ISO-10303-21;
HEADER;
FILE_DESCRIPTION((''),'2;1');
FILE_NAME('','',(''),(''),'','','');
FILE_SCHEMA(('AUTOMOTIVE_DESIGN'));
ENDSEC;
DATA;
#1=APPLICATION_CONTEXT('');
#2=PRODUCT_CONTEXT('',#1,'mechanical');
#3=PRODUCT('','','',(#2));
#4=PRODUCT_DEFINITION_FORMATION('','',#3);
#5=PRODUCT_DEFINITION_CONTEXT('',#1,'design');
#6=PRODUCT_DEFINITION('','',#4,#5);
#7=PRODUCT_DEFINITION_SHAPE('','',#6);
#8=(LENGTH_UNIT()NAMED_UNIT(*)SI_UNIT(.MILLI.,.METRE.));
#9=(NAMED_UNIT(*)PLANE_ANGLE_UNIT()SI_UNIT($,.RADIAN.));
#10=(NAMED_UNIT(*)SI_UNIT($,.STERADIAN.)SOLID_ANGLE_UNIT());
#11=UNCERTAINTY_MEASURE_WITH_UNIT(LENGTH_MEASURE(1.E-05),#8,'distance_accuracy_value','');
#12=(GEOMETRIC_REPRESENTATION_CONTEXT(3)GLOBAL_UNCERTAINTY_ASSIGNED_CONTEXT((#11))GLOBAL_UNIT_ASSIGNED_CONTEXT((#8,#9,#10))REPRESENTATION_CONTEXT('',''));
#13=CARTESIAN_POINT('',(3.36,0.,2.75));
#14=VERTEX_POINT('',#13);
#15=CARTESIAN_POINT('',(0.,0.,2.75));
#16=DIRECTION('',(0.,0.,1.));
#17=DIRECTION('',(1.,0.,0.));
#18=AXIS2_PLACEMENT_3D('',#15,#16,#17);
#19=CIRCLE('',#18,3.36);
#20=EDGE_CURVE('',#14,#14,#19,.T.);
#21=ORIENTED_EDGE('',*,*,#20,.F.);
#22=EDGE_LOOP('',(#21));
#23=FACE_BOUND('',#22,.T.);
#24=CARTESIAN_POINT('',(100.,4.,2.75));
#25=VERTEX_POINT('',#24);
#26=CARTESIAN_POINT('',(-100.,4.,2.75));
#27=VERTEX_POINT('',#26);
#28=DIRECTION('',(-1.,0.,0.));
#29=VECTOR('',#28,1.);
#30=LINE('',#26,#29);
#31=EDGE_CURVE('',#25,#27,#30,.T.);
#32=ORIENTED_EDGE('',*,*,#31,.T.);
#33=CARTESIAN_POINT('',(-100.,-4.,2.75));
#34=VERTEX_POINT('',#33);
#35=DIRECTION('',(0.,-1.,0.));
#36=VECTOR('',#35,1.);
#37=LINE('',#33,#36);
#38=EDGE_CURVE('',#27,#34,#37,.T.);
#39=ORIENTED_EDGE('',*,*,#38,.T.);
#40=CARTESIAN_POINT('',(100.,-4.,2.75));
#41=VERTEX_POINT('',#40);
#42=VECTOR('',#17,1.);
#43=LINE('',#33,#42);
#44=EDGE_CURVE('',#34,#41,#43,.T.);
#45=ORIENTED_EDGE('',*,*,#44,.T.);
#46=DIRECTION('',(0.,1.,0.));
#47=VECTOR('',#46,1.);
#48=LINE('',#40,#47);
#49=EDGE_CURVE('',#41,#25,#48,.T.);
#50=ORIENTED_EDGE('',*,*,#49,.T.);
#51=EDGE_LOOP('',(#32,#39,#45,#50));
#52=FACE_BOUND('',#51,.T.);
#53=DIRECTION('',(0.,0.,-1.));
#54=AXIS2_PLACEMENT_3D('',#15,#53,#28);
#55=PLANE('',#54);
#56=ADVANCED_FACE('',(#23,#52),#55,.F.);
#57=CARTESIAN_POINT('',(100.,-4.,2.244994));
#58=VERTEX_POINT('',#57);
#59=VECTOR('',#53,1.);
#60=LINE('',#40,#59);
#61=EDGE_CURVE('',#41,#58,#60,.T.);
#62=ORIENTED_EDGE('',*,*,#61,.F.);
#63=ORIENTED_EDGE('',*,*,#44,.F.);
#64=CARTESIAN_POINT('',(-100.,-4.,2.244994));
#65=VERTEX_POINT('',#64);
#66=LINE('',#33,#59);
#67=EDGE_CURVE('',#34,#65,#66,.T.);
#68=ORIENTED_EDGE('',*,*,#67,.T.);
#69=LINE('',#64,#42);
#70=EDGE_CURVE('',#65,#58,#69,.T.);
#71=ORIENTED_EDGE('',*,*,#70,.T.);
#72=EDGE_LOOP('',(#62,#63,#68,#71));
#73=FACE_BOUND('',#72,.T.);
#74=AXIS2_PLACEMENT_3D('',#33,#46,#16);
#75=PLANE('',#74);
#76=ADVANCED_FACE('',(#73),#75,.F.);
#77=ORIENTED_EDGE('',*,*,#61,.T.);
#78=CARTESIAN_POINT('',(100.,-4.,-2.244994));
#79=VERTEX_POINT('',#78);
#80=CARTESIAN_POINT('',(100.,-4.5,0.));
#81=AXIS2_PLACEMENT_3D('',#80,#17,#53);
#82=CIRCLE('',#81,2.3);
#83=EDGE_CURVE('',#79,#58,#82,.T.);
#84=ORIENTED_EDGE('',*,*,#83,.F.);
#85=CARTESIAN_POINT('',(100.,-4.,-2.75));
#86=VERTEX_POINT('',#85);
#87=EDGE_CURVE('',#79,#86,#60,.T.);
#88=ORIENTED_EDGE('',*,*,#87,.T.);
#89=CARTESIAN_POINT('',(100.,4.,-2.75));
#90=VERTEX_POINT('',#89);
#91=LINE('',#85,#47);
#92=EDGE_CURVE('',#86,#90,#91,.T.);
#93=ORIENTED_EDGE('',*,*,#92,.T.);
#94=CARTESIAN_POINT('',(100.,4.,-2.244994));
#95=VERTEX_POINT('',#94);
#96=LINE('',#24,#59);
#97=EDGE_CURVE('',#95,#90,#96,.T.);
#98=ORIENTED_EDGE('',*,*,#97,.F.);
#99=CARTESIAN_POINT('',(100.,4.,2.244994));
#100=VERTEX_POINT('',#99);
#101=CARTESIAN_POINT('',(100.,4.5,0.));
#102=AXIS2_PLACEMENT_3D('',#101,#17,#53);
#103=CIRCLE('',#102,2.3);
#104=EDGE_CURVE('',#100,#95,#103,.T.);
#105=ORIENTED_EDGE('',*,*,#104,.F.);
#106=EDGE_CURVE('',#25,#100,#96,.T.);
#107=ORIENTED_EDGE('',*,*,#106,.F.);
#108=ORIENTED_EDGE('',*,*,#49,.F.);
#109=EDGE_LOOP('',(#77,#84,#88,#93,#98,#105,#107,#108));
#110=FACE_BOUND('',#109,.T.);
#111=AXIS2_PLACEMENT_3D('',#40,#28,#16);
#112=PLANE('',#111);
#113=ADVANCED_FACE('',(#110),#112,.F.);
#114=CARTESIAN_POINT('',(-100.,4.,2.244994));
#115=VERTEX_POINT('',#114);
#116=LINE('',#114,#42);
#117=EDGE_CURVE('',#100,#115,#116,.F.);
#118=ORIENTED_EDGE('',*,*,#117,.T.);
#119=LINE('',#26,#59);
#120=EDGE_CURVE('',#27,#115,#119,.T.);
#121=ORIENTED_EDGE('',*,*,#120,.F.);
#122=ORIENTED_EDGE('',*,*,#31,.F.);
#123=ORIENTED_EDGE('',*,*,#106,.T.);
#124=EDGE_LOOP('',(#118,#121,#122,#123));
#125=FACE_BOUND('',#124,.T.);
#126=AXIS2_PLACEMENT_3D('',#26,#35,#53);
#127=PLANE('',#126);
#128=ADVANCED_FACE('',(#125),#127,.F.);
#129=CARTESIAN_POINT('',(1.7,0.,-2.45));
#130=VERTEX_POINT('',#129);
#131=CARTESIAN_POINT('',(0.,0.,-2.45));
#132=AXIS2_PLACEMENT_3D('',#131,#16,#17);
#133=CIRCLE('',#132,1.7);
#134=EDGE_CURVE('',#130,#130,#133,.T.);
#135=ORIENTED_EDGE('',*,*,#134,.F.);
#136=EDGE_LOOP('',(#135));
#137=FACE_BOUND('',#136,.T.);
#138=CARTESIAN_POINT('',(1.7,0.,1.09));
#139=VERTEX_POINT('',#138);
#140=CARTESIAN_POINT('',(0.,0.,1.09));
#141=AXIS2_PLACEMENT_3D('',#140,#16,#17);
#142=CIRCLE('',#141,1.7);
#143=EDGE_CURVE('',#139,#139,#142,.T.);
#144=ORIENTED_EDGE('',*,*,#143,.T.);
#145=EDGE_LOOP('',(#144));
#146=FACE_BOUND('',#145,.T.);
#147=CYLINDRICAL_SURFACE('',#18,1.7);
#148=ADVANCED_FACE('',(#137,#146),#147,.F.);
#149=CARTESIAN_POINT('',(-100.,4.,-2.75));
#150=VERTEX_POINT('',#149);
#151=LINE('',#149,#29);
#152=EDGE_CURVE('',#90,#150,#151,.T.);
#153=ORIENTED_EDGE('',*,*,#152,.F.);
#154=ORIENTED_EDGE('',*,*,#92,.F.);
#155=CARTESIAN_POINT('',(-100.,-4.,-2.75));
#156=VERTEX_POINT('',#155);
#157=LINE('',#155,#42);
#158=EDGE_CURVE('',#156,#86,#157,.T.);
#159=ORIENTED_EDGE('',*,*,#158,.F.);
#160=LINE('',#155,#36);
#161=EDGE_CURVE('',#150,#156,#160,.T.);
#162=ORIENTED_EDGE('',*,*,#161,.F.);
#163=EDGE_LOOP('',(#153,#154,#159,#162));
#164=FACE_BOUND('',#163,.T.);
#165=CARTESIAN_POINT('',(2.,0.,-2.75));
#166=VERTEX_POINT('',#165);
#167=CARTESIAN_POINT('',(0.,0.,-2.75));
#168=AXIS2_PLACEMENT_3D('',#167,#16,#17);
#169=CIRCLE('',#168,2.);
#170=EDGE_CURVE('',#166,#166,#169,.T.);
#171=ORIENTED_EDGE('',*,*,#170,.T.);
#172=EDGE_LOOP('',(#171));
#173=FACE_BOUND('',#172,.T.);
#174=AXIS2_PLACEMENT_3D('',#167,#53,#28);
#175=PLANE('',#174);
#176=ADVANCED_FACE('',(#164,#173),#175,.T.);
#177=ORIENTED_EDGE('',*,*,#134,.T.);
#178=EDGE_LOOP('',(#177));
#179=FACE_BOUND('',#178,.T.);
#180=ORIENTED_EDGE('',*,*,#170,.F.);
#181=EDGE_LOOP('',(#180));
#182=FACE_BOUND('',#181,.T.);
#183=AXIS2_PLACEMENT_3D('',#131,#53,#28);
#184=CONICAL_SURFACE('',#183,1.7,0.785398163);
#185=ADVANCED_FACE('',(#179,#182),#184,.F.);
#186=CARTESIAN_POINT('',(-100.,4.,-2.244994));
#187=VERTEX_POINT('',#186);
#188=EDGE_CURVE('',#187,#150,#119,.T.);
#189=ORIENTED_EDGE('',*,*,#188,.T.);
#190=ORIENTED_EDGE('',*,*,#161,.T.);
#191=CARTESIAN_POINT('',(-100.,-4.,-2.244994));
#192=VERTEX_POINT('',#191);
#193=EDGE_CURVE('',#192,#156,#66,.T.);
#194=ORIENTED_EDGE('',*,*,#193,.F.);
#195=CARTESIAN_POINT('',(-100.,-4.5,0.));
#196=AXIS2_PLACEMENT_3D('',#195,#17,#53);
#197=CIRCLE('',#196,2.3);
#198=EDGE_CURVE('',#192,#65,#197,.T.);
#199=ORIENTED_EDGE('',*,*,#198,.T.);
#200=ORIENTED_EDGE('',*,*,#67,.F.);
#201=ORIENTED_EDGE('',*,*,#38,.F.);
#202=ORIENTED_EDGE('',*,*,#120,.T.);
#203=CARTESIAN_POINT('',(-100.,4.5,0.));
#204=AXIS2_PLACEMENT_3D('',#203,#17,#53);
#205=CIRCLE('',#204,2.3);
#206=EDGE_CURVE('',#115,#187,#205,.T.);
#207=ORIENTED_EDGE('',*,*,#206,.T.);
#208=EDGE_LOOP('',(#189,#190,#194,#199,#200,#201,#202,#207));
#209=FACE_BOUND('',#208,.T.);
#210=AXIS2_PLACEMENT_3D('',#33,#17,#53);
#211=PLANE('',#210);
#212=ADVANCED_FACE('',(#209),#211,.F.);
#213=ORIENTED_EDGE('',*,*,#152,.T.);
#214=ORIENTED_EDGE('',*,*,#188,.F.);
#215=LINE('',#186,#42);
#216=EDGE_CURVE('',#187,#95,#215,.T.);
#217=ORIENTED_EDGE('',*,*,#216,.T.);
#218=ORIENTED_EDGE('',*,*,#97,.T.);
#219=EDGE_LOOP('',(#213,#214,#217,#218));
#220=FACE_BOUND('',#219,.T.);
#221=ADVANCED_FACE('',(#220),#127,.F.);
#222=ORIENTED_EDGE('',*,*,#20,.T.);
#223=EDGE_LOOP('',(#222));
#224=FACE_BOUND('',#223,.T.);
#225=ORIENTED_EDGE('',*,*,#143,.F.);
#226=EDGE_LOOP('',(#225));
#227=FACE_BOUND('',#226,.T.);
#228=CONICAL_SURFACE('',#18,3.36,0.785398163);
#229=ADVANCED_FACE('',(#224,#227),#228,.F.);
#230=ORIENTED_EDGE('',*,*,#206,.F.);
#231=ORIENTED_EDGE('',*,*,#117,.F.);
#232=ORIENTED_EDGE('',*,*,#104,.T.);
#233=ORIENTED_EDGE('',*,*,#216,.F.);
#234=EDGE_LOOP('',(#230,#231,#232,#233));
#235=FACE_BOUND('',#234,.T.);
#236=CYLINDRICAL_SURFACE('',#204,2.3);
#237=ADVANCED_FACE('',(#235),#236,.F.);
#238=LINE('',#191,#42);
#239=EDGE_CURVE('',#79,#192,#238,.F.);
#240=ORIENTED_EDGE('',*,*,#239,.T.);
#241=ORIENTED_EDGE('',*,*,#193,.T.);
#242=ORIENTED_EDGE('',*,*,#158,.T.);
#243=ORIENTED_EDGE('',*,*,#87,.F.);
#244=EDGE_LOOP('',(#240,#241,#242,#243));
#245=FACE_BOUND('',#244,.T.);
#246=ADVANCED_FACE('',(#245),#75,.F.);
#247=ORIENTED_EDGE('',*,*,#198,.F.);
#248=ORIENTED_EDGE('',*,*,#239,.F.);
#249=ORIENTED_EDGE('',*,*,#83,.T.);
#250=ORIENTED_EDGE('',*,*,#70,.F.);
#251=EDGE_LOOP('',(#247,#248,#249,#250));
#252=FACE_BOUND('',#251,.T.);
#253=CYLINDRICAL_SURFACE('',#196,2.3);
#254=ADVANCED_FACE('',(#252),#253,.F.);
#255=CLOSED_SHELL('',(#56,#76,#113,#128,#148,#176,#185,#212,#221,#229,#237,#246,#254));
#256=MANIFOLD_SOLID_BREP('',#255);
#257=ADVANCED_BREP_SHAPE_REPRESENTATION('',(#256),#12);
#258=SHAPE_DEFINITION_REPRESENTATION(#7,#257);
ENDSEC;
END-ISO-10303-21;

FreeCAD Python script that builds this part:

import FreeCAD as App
import Part
import Sketcher

V = App.Vector
Q = App.Units.Quantity


def add_polygon(sketch, points):
    """Adds a closed chain of lines whose ends are joined by coincident constraints."""
    first, n = sketch.GeometryCount, len(points)
    for a, b in zip(points, points[1:] + points[:1]):
        sketch.addGeometry(Part.LineSegment(App.Vector(*a, 0), App.Vector(*b, 0)), False)
    for i in range(n):
        sketch.addConstraint(Sketcher.Constraint("Coincident", first + i, 2, first + (i + 1) % n, 1))

doc = App.newDocument("Part")
body = doc.addObject("PartDesign::Body", "Body")

# Sketch on XY plane
sketch1 = body.newObject("Sketcher::SketchObject", "Sketch")
sketch1.AttachmentSupport = (doc.getObject("XY_Plane"), [""])
sketch1.MapMode = "FlatFace"
add_polygon(sketch1, [(-100, 4), (-100, -4), (100, -4), (100, 4)])  # lines 0-3
sketch1.addConstraint(Sketcher.Constraint("Vertical", 0))
sketch1.addConstraint(Sketcher.Constraint("Horizontal", 1))
sketch1.addConstraint(Sketcher.Constraint("Vertical", 2))
sketch1.addConstraint(Sketcher.Constraint("Horizontal", 3))
sketch1.addConstraint(Sketcher.Constraint("Symmetric", 0, 2, 2, 2, -1, 1))
sketch1.addConstraint(Sketcher.Constraint("DistanceX", 1, 1, 1, 2, 200.0))
sketch1.addConstraint(Sketcher.Constraint("DistanceY", 0, 2, 0, 1, 8.0))
pad1 = body.newObject("PartDesign::Pad", "Pad")
pad1.Profile = sketch1
pad1.Length = 5.5
pad1.Midplane = True

# Sketch on YZ plane
sketch2 = body.newObject("Sketcher::SketchObject", "Sketch001")
sketch2.AttachmentSupport = (doc.getObject("YZ_Plane"), [""])
sketch2.MapMode = "FlatFace"
sketch2.addGeometry(Part.Circle(V(4.5, 0, 0), V(0, 0, 1), 2.3), False)
sketch2.addGeometry(Part.Circle(V(-4.5, 0, 0), V(0, 0, 1), 2.3), False)
sketch2.addConstraint(Sketcher.Constraint("Equal", 0, 1))
sketch2.addConstraint(Sketcher.Constraint("Symmetric", 0, 3, 1, 3, -1, 1))
sketch2.addConstraint(Sketcher.Constraint("PointOnObject", 0, 3, -1))
sketch2.addConstraint(Sketcher.Constraint("Diameter", 0, 4.6))
sketch2.addConstraint(Sketcher.Constraint("DistanceX", 1, 3, 0, 3, 9.0))
pocket1 = body.newObject("PartDesign::Pocket", "Pocket")
pocket1.Profile = sketch2
pocket1.Type = "ThroughAll"
pocket1.Midplane = True

# Sketch on YZ plane
sketch3 = body.newObject("Sketcher::SketchObject", "Sketch002")
sketch3.AttachmentSupport = (doc.getObject("YZ_Plane"), [""])
sketch3.MapMode = "FlatFace"
add_polygon(sketch3, [(0, -2.75), (0, 2.75), (-3.36, 2.75), (-1.7, 1.09), (-1.7, -2.45), (-2, -2.75)])  # lines 0-5
sketch3.addConstraint(Sketcher.Constraint("Vertical", 0))
sketch3.addConstraint(Sketcher.Constraint("Horizontal", 1))
sketch3.addConstraint(Sketcher.Constraint("Vertical", 3))
sketch3.addConstraint(Sketcher.Constraint("Horizontal", 5))
sketch3.addConstraint(Sketcher.Constraint("Symmetric", 0, 2, 5, 2, -1, 1))
sketch3.addConstraint(Sketcher.Constraint("Perpendicular", 2, 4))
sketch3.addConstraint(Sketcher.Constraint("DistanceX", 5, 1, 5, 2, 2.0))
sketch3.addConstraint(Sketcher.Constraint("Angle", 2, Q("-45 deg")))
sketch3.addConstraint(Sketcher.Constraint("DistanceY", 0, 1, 0, 2, 5.5))
sketch3.addConstraint(Sketcher.Constraint("DistanceX", 1, 2, 1, 1, 3.36))
sketch3.addConstraint(Sketcher.Constraint("DistanceY", 3, 2, 3, 1, 3.54))
groove = body.newObject("PartDesign::Groove", "Groove")
groove.Profile = sketch3
groove.ReferenceAxis = (sketch3, ["V_Axis"])
groove.Angle = 360

doc.recompute()
